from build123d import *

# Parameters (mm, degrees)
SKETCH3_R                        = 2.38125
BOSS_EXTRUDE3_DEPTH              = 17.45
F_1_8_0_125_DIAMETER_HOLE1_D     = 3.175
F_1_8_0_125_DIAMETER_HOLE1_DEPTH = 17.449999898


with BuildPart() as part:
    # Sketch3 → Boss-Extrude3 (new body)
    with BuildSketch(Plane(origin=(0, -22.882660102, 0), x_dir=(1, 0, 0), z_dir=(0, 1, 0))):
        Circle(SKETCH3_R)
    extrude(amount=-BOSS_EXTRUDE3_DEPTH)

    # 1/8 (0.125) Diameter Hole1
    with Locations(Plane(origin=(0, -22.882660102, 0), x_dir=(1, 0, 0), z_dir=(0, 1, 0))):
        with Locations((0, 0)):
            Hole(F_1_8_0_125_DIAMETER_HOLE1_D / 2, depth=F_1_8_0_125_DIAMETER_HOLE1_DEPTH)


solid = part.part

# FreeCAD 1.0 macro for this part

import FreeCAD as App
import Part
import Sketcher

V = App.Vector
Q = App.Units.Quantity

doc = App.newDocument("Part")
body = doc.addObject("PartDesign::Body", "Body")

# Sketch on XZ plane
sketch1 = doc.addObject("Sketcher::SketchObject", "Sketch")
body.addObject(sketch1)
sketch1.AttachmentSupport = (doc.XZ_Plane, [""])
sketch1.MapMode = "FlatFace"
sketch1.AttachmentOffset = App.Placement(V(0, 0, 22.88266), App.Rotation())
sketch1.addGeometry(Part.Circle(V(0, 0, 0), V(0, 0, 1), 2.4), False)
sketch1.addConstraint([
    Sketcher.Constraint("Coincident", 0, 3, -1, 1),
    Sketcher.Constraint("Diameter", 0, Q("0.1875 in")),
])
pad1 = doc.addObject("PartDesign::Pad", "Pad")
body.addObject(pad1)
pad1.Profile = sketch1
pad1.Length = 17.45

# Sketch on XZ plane
sketch2 = doc.addObject("Sketcher::SketchObject", "Sketch001")
body.addObject(sketch2)
sketch2.AttachmentSupport = (doc.XZ_Plane, [""])
sketch2.MapMode = "FlatFace"
sketch2.AttachmentOffset = App.Placement(V(0, 0, 22.88266), App.Rotation())
sketch2.addGeometry(Part.Circle(V(0, 0, 0), V(0, 0, 1), 1.6), False)
sketch2.addConstraint([
    Sketcher.Constraint("Coincident", 0, 3, -1, 1),
    Sketcher.Constraint("Diameter", 0, Q("0.125 in")),
])
doc.recompute()
hole = doc.addObject("PartDesign::Hole", "Hole")
body.addObject(hole)
hole.Profile = sketch2
hole.ThreadType = "None"
hole.Diameter = Q("0.125 in")
hole.DepthType = "Dimension"
hole.Depth = 17.45
hole.DrillPoint = "Flat"
hole.Reversed = True

doc.recompute()
